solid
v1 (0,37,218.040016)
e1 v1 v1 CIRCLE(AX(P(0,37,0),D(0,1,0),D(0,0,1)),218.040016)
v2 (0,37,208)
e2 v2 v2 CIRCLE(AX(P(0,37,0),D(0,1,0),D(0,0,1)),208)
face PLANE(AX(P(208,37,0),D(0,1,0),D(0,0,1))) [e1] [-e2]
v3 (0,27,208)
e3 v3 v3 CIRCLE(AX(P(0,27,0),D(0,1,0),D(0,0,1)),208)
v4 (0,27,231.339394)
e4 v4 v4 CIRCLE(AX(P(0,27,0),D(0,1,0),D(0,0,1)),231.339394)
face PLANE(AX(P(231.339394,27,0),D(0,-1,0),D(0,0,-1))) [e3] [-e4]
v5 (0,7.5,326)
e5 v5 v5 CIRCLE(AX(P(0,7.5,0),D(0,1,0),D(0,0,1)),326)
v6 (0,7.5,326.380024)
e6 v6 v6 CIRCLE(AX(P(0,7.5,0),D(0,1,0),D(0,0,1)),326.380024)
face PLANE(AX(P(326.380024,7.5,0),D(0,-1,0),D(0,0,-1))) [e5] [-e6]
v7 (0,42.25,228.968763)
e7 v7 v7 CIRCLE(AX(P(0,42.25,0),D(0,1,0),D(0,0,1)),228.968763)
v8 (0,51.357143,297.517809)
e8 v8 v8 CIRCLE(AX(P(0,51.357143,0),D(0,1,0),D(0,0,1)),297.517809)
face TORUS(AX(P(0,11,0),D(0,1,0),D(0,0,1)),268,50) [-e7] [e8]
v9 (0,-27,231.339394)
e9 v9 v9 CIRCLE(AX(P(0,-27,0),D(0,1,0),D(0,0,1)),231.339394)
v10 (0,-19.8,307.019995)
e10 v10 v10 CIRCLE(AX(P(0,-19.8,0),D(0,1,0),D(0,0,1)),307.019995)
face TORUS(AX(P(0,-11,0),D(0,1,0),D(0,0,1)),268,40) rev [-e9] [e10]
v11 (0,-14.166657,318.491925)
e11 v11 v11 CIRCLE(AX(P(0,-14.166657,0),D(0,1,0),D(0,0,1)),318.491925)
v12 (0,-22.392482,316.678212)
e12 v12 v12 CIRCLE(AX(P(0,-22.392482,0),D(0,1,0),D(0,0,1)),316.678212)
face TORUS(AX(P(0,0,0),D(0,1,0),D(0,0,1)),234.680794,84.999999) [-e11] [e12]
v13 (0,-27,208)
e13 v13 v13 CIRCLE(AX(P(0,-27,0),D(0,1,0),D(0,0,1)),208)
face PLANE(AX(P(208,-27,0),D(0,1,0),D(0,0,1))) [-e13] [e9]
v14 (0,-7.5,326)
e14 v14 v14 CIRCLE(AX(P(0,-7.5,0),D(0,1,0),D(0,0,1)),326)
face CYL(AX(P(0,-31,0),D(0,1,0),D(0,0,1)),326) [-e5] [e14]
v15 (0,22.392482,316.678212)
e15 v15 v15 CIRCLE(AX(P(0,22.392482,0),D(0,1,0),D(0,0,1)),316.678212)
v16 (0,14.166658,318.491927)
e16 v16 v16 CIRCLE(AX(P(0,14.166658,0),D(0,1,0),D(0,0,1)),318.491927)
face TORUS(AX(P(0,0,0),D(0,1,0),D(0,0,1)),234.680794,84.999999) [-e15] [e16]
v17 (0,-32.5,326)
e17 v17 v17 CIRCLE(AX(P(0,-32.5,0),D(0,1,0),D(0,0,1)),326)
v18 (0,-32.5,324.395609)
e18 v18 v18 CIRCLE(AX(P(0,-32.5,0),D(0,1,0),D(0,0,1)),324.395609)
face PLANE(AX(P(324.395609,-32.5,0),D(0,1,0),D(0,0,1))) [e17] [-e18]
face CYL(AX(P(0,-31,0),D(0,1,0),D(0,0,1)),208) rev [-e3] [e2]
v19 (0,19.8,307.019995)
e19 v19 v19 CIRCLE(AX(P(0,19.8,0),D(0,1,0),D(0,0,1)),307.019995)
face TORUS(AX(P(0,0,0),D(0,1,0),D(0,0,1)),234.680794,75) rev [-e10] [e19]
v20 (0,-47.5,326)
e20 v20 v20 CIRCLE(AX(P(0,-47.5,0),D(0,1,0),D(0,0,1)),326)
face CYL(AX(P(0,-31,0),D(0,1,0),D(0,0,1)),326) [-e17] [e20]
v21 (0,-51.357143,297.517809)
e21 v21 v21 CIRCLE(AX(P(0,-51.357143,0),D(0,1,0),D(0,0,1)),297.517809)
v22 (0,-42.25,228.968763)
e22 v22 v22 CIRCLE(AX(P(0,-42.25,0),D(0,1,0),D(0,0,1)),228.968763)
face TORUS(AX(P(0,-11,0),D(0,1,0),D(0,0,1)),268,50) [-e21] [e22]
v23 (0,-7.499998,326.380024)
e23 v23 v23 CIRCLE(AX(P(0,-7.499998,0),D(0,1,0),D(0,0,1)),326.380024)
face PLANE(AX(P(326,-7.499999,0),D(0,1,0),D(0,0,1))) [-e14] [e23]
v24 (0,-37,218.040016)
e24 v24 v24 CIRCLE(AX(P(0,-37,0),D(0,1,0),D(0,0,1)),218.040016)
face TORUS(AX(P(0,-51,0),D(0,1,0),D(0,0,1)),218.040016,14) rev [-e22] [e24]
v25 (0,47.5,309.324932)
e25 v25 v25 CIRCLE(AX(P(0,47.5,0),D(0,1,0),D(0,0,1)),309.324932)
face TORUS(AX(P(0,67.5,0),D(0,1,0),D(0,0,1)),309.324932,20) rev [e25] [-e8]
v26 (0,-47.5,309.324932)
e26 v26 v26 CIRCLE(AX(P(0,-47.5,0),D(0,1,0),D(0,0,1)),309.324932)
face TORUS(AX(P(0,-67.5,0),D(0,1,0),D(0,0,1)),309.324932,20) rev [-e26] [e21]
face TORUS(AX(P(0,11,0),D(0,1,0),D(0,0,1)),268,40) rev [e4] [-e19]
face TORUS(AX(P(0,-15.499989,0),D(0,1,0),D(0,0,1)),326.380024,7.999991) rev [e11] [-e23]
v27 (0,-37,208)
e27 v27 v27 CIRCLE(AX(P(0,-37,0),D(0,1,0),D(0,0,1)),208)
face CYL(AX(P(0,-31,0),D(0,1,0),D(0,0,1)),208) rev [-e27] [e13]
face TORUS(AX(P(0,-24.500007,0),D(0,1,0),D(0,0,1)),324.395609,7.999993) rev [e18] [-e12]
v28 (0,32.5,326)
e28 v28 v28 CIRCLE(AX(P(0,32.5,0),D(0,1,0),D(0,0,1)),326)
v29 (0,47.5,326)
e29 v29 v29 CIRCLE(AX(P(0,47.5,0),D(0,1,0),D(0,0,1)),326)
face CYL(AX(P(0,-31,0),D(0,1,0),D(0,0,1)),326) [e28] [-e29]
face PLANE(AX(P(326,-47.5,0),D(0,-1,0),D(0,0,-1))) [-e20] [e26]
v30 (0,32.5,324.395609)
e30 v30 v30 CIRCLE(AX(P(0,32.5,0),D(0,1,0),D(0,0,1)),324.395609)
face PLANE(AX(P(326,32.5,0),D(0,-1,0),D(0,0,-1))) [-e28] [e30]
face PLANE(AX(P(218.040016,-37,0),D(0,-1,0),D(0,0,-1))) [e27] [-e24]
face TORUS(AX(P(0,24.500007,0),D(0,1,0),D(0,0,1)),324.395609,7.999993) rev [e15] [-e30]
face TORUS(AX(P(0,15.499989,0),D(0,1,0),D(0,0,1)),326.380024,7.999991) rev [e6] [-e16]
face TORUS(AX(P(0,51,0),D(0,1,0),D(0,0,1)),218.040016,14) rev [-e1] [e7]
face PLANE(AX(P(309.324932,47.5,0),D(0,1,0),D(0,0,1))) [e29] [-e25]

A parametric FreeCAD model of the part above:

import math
import FreeCAD as App
import Part
import Sketcher
Q = App.Units.Quantity

doc = App.newDocument("Part")
body = doc.addObject("PartDesign::Body", "Body")

# Sketch on XY plane
sketch1 = doc.addObject("Sketcher::SketchObject", "Sketch")
body.addObject(sketch1)
sketch1.AttachmentSupport = (doc.XY_Plane, [""])
sketch1.MapMode = "FlatFace"
sketch1.addGeometry([
    Part.LineSegment(App.Vector(231.34, 27, 0), App.Vector(208, 27, 0)),  # 0
    Part.LineSegment(App.Vector(208, 27, 0), App.Vector(208, 37, 0)),  # 1
    Part.LineSegment(App.Vector(208, 37, 0), App.Vector(218.04, 37, 0)),  # 2
    Part.ArcOfCircle(Part.Circle(App.Vector(218.04, 51, 0), App.Vector(0, 0, 1), 14), math.radians(-90), math.radians(-39)),  # 3
    Part.ArcOfCircle(Part.Circle(App.Vector(268, 11, 0), App.Vector(0, 0, 1), 50), math.radians(54), math.radians(141)),  # 4
    Part.ArcOfCircle(Part.Circle(App.Vector(309.32, 67.5, 0), App.Vector(0, 0, 1), 20), math.radians(-126), math.radians(-90)),  # 5
    Part.LineSegment(App.Vector(309.32, 47.5, 0), App.Vector(326, 47.5, 0)),  # 6
    Part.LineSegment(App.Vector(326, 47.5, 0), App.Vector(326, 32.5, 0)),  # 7
    Part.LineSegment(App.Vector(326, 32.5, 0), App.Vector(324.4, 32.5, 0)),  # 8
    Part.ArcOfCircle(Part.Circle(App.Vector(324.4, 24.5, 0), App.Vector(0, 0, 1), 8), math.radians(90), math.radians(195)),  # 9
    Part.ArcOfCircle(Part.Circle(App.Vector(234.68, 0, 0), App.Vector(0, 0, 1), 85), math.radians(9.59), math.radians(15.27)),  # 10
    Part.ArcOfCircle(Part.Circle(App.Vector(326.38, 15.5, 0), App.Vector(0, 0, 1), 8), math.radians(-170), math.radians(-90)),  # 11
    Part.LineSegment(App.Vector(326.38, 7.5, 0), App.Vector(326, 7.5, 0)),  # 12
    Part.LineSegment(App.Vector(326, 7.5, 0), App.Vector(326, -7.5, 0)),  # 13
    Part.LineSegment(App.Vector(326, -7.5, 0), App.Vector(326.38, -7.5, 0)),  # 14
    Part.ArcOfCircle(Part.Circle(App.Vector(326.38, -15.5, 0), App.Vector(0, 0, 1), 8), math.radians(90), math.radians(170)),  # 15
    Part.ArcOfCircle(Part.Circle(App.Vector(234.68, 0, 0), App.Vector(0, 0, 1), 85), math.radians(-15.27), math.radians(-9.59)),  # 16
    Part.ArcOfCircle(Part.Circle(App.Vector(324.4, -24.5, 0), App.Vector(0, 0, 1), 8), math.radians(165), math.radians(270)),  # 17
    Part.LineSegment(App.Vector(324.4, -32.5, 0), App.Vector(326, -32.5, 0)),  # 18
    Part.LineSegment(App.Vector(326, -32.5, 0), App.Vector(326, -47.5, 0)),  # 19
    Part.LineSegment(App.Vector(326, -47.5, 0), App.Vector(309.32, -47.5, 0)),  # 20
    Part.ArcOfCircle(Part.Circle(App.Vector(309.32, -67.5, 0), App.Vector(0, 0, 1), 20), math.radians(90), math.radians(126)),  # 21
    Part.ArcOfCircle(Part.Circle(App.Vector(268, -11, 0), App.Vector(0, 0, 1), 50), math.radians(-141), math.radians(-54)),  # 22
    Part.ArcOfCircle(Part.Circle(App.Vector(218.04, -51, 0), App.Vector(0, 0, 1), 14), math.radians(39), math.radians(90)),  # 23
    Part.LineSegment(App.Vector(218.04, -37, 0), App.Vector(208, -37, 0)),  # 24
    Part.LineSegment(App.Vector(208, -37, 0), App.Vector(208, -27, 0)),  # 25
    Part.LineSegment(App.Vector(208, -27, 0), App.Vector(231.34, -27, 0)),  # 26
    Part.ArcOfCircle(Part.Circle(App.Vector(268, -11, 0), App.Vector(0, 0, 1), 40), math.radians(-156), math.radians(-13)),  # 27
    Part.ArcOfCircle(Part.Circle(App.Vector(234.68, 0, 0), App.Vector(0, 0, 1), 75), math.radians(-15), math.radians(15)),  # 28
    Part.ArcOfCircle(Part.Circle(App.Vector(268, 11, 0), App.Vector(0, 0, 1), 40), math.radians(13), math.radians(156)),  # 29
], False)
sketch1.addConstraint([
    Sketcher.Constraint("Coincident", 0, 2, 1, 1),
    Sketcher.Constraint("Coincident", 1, 2, 2, 1),
    Sketcher.Constraint("Tangent", 2, 2, 3, 1),
    Sketcher.Constraint("Tangent", 3, 2, 4, 2),
    Sketcher.Constraint("Tangent", 4, 1, 5, 1),
    Sketcher.Constraint("Tangent", 5, 2, 6, 1),
    Sketcher.Constraint("Coincident", 6, 2, 7, 1),
    Sketcher.Constraint("Coincident", 7, 2, 8, 1),
    Sketcher.Constraint("Tangent", 8, 2, 9, 1),
    Sketcher.Constraint("Tangent", 9, 2, 10, 2),
    Sketcher.Constraint("Tangent", 10, 1, 11, 1),
    Sketcher.Constraint("Tangent", 11, 2, 12, 1),
    Sketcher.Constraint("Coincident", 12, 2, 13, 1),
    Sketcher.Constraint("Coincident", 13, 2, 14, 1),
    Sketcher.Constraint("Tangent", 14, 2, 15, 1),
    Sketcher.Constraint("Tangent", 15, 2, 16, 2),
    Sketcher.Constraint("Tangent", 16, 1, 17, 1),
    Sketcher.Constraint("Tangent", 17, 2, 18, 1),
    Sketcher.Constraint("Coincident", 18, 2, 19, 1),
    Sketcher.Constraint("Coincident", 19, 2, 20, 1),
    Sketcher.Constraint("Tangent", 20, 2, 21, 1),
    Sketcher.Constraint("Tangent", 21, 2, 22, 2),
    Sketcher.Constraint("Tangent", 22, 1, 23, 1),
    Sketcher.Constraint("Tangent", 23, 2, 24, 1),
    Sketcher.Constraint("Coincident", 24, 2, 25, 1),
    Sketcher.Constraint("Coincident", 25, 2, 26, 1),
    Sketcher.Constraint("Coincident", 26, 2, 27, 1),
    Sketcher.Constraint("Coincident", 27, 2, 28, 1),
    Sketcher.Constraint("Coincident", 28, 2, 29, 1),
    Sketcher.Constraint("Coincident", 29, 2, 0, 1),
    Sketcher.Constraint("Horizontal", 0),
    Sketcher.Constraint("Vertical", 1),
    Sketcher.Constraint("Horizontal", 2),
    Sketcher.Constraint("Horizontal", 6),
    Sketcher.Constraint("Vertical", 7),
    Sketcher.Constraint("Horizontal", 8),
    Sketcher.Constraint("Horizontal", 12),
    Sketcher.Constraint("Vertical", 13),
    Sketcher.Constraint("Horizontal", 14),
    Sketcher.Constraint("Horizontal", 18),
    Sketcher.Constraint("Vertical", 19),
    Sketcher.Constraint("Horizontal", 20),
    Sketcher.Constraint("Horizontal", 24),
    Sketcher.Constraint("Vertical", 25),
    Sketcher.Constraint("Horizontal", 26),
    Sketcher.Constraint("Coincident", 16, 3, 10, 3),
    Sketcher.Constraint("Coincident", 27, 3, 22, 3),
    Sketcher.Constraint("Coincident", 28, 3, 10, 3),
    Sketcher.Constraint("Coincident", 29, 3, 4, 3),
    Sketcher.Constraint("Equal", 10, 16),
    Sketcher.Constraint("Equal", 9, 17),
    Sketcher.Constraint("Equal", 5, 21),
    Sketcher.Constraint("Equal", 4, 22),
    Sketcher.Constraint("Equal", 3, 23),
    Sketcher.Constraint("Equal", 27, 29),
    Sketcher.Constraint("Symmetric", 9, 3, 17, 3, -1),
    Sketcher.Constraint("Symmetric", 5, 3, 21, 3, -1),
    Sketcher.Constraint("Symmetric", 3, 3, 23, 3, -1),
    Sketcher.Constraint("Symmetric", 11, 2, 14, 2, -1),
    Sketcher.Constraint("Symmetric", 0, 2, 25, 2, -1),
    Sketcher.Constraint("Vertical", 7, 2, 12, 2),
    Sketcher.Constraint("Vertical", 13, 2, 18, 2),
    Sketcher.Constraint("Equal", 7, 13),
    Sketcher.Constraint("Radius", 3, Q("14 mm")),
    Sketcher.Constraint("Radius", 4, Q("50 mm")),
    Sketcher.Constraint("Radius", 5, Q("20 mm")),
    Sketcher.Constraint("Radius", 10, Q("84.999999 mm")),
    Sketcher.Constraint("Radius", 27, Q("40 mm")),
    Sketcher.Constraint("Radius", 28, Q("75 mm")),
    Sketcher.Constraint("DistanceY", 1, 1, 1, 2, Q("10 mm")),
    Sketcher.Constraint("DistanceY", 7, 2, 7, 1, Q("15 mm")),
    Sketcher.Constraint("DistanceY", -1, 1, 3, 3, Q("51 mm")),
    Sketcher.Constraint("DistanceX", -1, 1, 4, 3, Q("268 mm")),
    Sketcher.Constraint("DistanceY", -1, 1, 4, 3, Q("11 mm")),
    Sketcher.Constraint("DistanceX", -1, 1, 0, 2, Q("208 mm")),
    Sketcher.Constraint("DistanceX", -1, 1, 6, 2, Q("326 mm")),
    Sketcher.Constraint("DistanceY", 17, 2, 13, 2, Q("25 mm")),
    Sketcher.Constraint("DistanceY", 27, 2, -1, 1, Q("19.8 mm")),
    Sketcher.Constraint("DistanceX", 3, 3, 11, 3, Q("108.34 mm")),
    Sketcher.Constraint("Radius", 9, Q("7.999993 mm")),
])
revolution = doc.addObject("PartDesign::Revolution", "Revolution")
body.addObject(revolution)
revolution.Profile = sketch1
revolution.ReferenceAxis = (sketch1, ["V_Axis"])
revolution.Angle = 360

doc.recompute()
